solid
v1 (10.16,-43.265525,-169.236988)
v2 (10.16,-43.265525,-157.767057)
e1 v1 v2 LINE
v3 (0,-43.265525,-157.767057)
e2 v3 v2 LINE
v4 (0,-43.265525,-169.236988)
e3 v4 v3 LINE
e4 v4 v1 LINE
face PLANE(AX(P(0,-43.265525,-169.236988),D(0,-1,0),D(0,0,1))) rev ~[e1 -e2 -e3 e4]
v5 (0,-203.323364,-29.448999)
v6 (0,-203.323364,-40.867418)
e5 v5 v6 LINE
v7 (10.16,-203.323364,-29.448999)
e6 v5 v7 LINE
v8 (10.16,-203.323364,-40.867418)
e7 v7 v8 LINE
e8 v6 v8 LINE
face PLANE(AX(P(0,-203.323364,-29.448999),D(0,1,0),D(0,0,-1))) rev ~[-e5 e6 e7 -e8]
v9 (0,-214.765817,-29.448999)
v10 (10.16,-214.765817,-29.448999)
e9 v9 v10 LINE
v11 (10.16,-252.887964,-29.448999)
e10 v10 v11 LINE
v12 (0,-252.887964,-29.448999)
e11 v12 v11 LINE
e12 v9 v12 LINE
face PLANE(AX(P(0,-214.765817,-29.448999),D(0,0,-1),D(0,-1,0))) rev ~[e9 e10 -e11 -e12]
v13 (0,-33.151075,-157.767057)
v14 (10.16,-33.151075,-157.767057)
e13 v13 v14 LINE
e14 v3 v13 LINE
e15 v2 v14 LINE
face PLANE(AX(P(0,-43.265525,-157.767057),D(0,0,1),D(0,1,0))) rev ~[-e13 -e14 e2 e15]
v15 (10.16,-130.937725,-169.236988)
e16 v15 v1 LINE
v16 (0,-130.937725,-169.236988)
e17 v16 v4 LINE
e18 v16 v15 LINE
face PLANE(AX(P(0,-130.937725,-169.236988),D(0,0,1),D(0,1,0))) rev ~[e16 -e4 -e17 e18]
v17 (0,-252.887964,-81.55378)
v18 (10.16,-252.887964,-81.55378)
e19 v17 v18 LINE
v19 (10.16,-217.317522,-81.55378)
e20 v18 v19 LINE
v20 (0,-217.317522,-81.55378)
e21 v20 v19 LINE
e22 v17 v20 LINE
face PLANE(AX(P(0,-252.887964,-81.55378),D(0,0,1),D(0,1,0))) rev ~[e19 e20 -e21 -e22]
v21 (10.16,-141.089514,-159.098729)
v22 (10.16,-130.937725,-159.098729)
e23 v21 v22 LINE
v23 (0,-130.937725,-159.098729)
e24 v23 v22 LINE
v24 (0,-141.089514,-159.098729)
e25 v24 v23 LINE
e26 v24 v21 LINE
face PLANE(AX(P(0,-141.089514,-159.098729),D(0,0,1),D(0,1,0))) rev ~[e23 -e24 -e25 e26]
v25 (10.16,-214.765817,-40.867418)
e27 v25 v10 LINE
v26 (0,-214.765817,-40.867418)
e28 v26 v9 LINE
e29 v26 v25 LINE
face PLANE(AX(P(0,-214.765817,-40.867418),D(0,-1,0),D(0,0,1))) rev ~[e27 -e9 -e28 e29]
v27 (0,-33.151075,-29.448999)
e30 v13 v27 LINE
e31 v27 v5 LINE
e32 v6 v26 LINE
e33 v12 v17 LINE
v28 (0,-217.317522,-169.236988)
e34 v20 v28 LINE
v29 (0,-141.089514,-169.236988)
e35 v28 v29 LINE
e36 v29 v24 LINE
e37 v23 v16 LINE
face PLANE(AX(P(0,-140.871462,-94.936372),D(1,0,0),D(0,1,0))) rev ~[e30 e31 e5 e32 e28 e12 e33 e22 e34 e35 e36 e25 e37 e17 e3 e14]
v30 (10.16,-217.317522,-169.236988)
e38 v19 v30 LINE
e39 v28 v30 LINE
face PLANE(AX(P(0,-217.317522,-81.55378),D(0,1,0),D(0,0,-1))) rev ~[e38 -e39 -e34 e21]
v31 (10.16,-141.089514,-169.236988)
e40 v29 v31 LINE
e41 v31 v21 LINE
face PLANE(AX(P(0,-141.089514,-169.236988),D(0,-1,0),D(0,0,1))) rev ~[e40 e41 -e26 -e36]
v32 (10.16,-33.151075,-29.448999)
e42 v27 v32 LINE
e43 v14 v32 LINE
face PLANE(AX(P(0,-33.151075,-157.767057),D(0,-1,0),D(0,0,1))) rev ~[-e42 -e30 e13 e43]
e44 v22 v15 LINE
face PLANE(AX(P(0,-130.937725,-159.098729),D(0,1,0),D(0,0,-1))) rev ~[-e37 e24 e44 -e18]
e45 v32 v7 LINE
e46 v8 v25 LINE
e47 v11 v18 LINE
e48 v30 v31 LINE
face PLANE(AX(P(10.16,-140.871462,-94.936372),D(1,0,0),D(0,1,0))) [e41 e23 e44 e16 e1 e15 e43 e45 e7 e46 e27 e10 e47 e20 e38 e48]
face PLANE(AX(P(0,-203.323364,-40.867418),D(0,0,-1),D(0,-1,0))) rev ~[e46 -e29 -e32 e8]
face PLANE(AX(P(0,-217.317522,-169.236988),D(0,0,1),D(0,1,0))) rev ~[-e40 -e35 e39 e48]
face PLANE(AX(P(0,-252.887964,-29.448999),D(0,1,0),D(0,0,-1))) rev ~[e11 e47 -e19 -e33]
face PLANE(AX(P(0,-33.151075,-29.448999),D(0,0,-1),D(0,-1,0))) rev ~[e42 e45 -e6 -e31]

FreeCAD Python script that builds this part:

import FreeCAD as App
import Part
import Sketcher
from FreeCAD import Vector
Q = App.Units.Quantity

doc = App.newDocument("Part")
params = doc.addObject("Spreadsheet::Sheet", "Params")
for row, (alias, value) in enumerate([
    ("pad1_length", "0.4 in"),
], start=1):
    params.set(f"A{row}", alias)
    params.set(f"B{row}", "=" + value)
    params.setAlias(f"B{row}", alias)

body = doc.addObject("PartDesign::Body", "Body")

# Sketch on YZ plane
sketch1 = body.newObject("Sketcher::SketchObject", "Sketch")
sketch1.AttachmentSupport = (doc.getObject("YZ_Plane"), [""])
sketch1.MapMode = "FlatFace"
sketch1.addGeometry(Part.LineSegment(Vector(-33, -29, 0), Vector(-203, -29, 0)), False)
sketch1.addGeometry(Part.LineSegment(Vector(-203, -29, 0), Vector(-203, -41, 0)), False)
sketch1.addGeometry(Part.LineSegment(Vector(-203, -41, 0), Vector(-215, -41, 0)), False)
sketch1.addGeometry(Part.LineSegment(Vector(-215, -41, 0), Vector(-215, -29, 0)), False)
sketch1.addGeometry(Part.LineSegment(Vector(-215, -29, 0), Vector(-253, -29, 0)), False)
sketch1.addGeometry(Part.LineSegment(Vector(-253, -29, 0), Vector(-253, -82, 0)), False)
sketch1.addGeometry(Part.LineSegment(Vector(-253, -82, 0), Vector(-217, -82, 0)), False)
sketch1.addGeometry(Part.LineSegment(Vector(-217, -82, 0), Vector(-217, -169, 0)), False)
sketch1.addGeometry(Part.LineSegment(Vector(-217, -169, 0), Vector(-141, -169, 0)), False)
sketch1.addGeometry(Part.LineSegment(Vector(-141, -169, 0), Vector(-141, -159, 0)), False)
sketch1.addGeometry(Part.LineSegment(Vector(-141, -159, 0), Vector(-131, -159, 0)), False)
sketch1.addGeometry(Part.LineSegment(Vector(-131, -159, 0), Vector(-131, -169, 0)), False)
sketch1.addGeometry(Part.LineSegment(Vector(-131, -169, 0), Vector(-43, -169, 0)), False)
sketch1.addGeometry(Part.LineSegment(Vector(-43, -169, 0), Vector(-43, -158, 0)), False)
sketch1.addGeometry(Part.LineSegment(Vector(-43, -158, 0), Vector(-33, -158, 0)), False)
sketch1.addGeometry(Part.LineSegment(Vector(-33, -158, 0), Vector(-33, -29, 0)), False)
sketch1.addConstraint(Sketcher.Constraint("Coincident", 0, 2, 1, 1))
sketch1.addConstraint(Sketcher.Constraint("Coincident", 1, 2, 2, 1))
sketch1.addConstraint(Sketcher.Constraint("Coincident", 2, 2, 3, 1))
sketch1.addConstraint(Sketcher.Constraint("Coincident", 3, 2, 4, 1))
sketch1.addConstraint(Sketcher.Constraint("Coincident", 4, 2, 5, 1))
sketch1.addConstraint(Sketcher.Constraint("Coincident", 5, 2, 6, 1))
sketch1.addConstraint(Sketcher.Constraint("Coincident", 6, 2, 7, 1))
sketch1.addConstraint(Sketcher.Constraint("Coincident", 7, 2, 8, 1))
sketch1.addConstraint(Sketcher.Constraint("Coincident", 8, 2, 9, 1))
sketch1.addConstraint(Sketcher.Constraint("Coincident", 9, 2, 10, 1))
sketch1.addConstraint(Sketcher.Constraint("Coincident", 10, 2, 11, 1))
sketch1.addConstraint(Sketcher.Constraint("Coincident", 11, 2, 12, 1))
sketch1.addConstraint(Sketcher.Constraint("Coincident", 12, 2, 13, 1))
sketch1.addConstraint(Sketcher.Constraint("Coincident", 13, 2, 14, 1))
sketch1.addConstraint(Sketcher.Constraint("Coincident", 14, 2, 15, 1))
sketch1.addConstraint(Sketcher.Constraint("Coincident", 15, 2, 0, 1))
sketch1.addConstraint(Sketcher.Constraint("Horizontal", 0))
sketch1.addConstraint(Sketcher.Constraint("Vertical", 1))
sketch1.addConstraint(Sketcher.Constraint("Horizontal", 2))
sketch1.addConstraint(Sketcher.Constraint("Vertical", 3))
sketch1.addConstraint(Sketcher.Constraint("Horizontal", 4))
sketch1.addConstraint(Sketcher.Constraint("Vertical", 5))
sketch1.addConstraint(Sketcher.Constraint("Horizontal", 6))
sketch1.addConstraint(Sketcher.Constraint("Vertical", 7))
sketch1.addConstraint(Sketcher.Constraint("Horizontal", 8))
sketch1.addConstraint(Sketcher.Constraint("Vertical", 9))
sketch1.addConstraint(Sketcher.Constraint("Horizontal", 10))
sketch1.addConstraint(Sketcher.Constraint("Vertical", 11))
sketch1.addConstraint(Sketcher.Constraint("Horizontal", 12))
sketch1.addConstraint(Sketcher.Constraint("Vertical", 13))
sketch1.addConstraint(Sketcher.Constraint("Horizontal", 14))
sketch1.addConstraint(Sketcher.Constraint("Vertical", 15))
sketch1.addConstraint(Sketcher.Constraint("Horizontal", 0, 2, 3, 2))
sketch1.addConstraint(Sketcher.Constraint("Horizontal", 8, 2, 11, 2))
sketch1.addConstraint(Sketcher.Constraint("DistanceX", 12, 1, 12, 2, Q("87.6722 mm")))
sketch1.addConstraint(Sketcher.Constraint("DistanceX", 0, 2, 0, 1, Q("170.172289 mm")))
sketch1.addConstraint(Sketcher.Constraint("DistanceX", 10, 1, 10, 2, Q("10.151789 mm")))
sketch1.addConstraint(Sketcher.Constraint("DistanceX", 14, 1, 14, 2, Q("10.11445 mm")))
sketch1.addConstraint(Sketcher.Constraint("DistanceY", 1, 2, 1, 1, Q("11.418419 mm")))
sketch1.addConstraint(Sketcher.Constraint("DistanceY", 5, 2, 5, 1, Q("52.104781 mm")))
sketch1.addConstraint(Sketcher.Constraint("DistanceY", 9, 1, 9, 2, Q("10.138259 mm")))
sketch1.addConstraint(Sketcher.Constraint("DistanceY", 13, 1, 13, 2, Q("11.469931 mm")))
sketch1.addConstraint(Sketcher.Constraint("DistanceY", 15, 1, 15, 2, Q("128.318058 mm")))
sketch1.addConstraint(Sketcher.Constraint("DistanceY", 0, 2, -1, 1, Q("29.448999 mm")))
sketch1.addConstraint(Sketcher.Constraint("DistanceX", 4, 2, 0, 2, Q("49.5646 mm")))
sketch1.addConstraint(Sketcher.Constraint("DistanceX", 2, 2, 2, 1, Q("11.442453 mm")))
sketch1.addConstraint(Sketcher.Constraint("DistanceX", 6, 1, 6, 2, Q("35.570442 mm")))
sketch1.addConstraint(Sketcher.Constraint("DistanceX", 6, 2, -1, 1, Q("217.317522 mm")))
pad1 = body.newObject("PartDesign::Pad", "Pad")
pad1.Profile = sketch1
pad1.setExpression("Length", "Params.pad1_length")

doc.recompute()
